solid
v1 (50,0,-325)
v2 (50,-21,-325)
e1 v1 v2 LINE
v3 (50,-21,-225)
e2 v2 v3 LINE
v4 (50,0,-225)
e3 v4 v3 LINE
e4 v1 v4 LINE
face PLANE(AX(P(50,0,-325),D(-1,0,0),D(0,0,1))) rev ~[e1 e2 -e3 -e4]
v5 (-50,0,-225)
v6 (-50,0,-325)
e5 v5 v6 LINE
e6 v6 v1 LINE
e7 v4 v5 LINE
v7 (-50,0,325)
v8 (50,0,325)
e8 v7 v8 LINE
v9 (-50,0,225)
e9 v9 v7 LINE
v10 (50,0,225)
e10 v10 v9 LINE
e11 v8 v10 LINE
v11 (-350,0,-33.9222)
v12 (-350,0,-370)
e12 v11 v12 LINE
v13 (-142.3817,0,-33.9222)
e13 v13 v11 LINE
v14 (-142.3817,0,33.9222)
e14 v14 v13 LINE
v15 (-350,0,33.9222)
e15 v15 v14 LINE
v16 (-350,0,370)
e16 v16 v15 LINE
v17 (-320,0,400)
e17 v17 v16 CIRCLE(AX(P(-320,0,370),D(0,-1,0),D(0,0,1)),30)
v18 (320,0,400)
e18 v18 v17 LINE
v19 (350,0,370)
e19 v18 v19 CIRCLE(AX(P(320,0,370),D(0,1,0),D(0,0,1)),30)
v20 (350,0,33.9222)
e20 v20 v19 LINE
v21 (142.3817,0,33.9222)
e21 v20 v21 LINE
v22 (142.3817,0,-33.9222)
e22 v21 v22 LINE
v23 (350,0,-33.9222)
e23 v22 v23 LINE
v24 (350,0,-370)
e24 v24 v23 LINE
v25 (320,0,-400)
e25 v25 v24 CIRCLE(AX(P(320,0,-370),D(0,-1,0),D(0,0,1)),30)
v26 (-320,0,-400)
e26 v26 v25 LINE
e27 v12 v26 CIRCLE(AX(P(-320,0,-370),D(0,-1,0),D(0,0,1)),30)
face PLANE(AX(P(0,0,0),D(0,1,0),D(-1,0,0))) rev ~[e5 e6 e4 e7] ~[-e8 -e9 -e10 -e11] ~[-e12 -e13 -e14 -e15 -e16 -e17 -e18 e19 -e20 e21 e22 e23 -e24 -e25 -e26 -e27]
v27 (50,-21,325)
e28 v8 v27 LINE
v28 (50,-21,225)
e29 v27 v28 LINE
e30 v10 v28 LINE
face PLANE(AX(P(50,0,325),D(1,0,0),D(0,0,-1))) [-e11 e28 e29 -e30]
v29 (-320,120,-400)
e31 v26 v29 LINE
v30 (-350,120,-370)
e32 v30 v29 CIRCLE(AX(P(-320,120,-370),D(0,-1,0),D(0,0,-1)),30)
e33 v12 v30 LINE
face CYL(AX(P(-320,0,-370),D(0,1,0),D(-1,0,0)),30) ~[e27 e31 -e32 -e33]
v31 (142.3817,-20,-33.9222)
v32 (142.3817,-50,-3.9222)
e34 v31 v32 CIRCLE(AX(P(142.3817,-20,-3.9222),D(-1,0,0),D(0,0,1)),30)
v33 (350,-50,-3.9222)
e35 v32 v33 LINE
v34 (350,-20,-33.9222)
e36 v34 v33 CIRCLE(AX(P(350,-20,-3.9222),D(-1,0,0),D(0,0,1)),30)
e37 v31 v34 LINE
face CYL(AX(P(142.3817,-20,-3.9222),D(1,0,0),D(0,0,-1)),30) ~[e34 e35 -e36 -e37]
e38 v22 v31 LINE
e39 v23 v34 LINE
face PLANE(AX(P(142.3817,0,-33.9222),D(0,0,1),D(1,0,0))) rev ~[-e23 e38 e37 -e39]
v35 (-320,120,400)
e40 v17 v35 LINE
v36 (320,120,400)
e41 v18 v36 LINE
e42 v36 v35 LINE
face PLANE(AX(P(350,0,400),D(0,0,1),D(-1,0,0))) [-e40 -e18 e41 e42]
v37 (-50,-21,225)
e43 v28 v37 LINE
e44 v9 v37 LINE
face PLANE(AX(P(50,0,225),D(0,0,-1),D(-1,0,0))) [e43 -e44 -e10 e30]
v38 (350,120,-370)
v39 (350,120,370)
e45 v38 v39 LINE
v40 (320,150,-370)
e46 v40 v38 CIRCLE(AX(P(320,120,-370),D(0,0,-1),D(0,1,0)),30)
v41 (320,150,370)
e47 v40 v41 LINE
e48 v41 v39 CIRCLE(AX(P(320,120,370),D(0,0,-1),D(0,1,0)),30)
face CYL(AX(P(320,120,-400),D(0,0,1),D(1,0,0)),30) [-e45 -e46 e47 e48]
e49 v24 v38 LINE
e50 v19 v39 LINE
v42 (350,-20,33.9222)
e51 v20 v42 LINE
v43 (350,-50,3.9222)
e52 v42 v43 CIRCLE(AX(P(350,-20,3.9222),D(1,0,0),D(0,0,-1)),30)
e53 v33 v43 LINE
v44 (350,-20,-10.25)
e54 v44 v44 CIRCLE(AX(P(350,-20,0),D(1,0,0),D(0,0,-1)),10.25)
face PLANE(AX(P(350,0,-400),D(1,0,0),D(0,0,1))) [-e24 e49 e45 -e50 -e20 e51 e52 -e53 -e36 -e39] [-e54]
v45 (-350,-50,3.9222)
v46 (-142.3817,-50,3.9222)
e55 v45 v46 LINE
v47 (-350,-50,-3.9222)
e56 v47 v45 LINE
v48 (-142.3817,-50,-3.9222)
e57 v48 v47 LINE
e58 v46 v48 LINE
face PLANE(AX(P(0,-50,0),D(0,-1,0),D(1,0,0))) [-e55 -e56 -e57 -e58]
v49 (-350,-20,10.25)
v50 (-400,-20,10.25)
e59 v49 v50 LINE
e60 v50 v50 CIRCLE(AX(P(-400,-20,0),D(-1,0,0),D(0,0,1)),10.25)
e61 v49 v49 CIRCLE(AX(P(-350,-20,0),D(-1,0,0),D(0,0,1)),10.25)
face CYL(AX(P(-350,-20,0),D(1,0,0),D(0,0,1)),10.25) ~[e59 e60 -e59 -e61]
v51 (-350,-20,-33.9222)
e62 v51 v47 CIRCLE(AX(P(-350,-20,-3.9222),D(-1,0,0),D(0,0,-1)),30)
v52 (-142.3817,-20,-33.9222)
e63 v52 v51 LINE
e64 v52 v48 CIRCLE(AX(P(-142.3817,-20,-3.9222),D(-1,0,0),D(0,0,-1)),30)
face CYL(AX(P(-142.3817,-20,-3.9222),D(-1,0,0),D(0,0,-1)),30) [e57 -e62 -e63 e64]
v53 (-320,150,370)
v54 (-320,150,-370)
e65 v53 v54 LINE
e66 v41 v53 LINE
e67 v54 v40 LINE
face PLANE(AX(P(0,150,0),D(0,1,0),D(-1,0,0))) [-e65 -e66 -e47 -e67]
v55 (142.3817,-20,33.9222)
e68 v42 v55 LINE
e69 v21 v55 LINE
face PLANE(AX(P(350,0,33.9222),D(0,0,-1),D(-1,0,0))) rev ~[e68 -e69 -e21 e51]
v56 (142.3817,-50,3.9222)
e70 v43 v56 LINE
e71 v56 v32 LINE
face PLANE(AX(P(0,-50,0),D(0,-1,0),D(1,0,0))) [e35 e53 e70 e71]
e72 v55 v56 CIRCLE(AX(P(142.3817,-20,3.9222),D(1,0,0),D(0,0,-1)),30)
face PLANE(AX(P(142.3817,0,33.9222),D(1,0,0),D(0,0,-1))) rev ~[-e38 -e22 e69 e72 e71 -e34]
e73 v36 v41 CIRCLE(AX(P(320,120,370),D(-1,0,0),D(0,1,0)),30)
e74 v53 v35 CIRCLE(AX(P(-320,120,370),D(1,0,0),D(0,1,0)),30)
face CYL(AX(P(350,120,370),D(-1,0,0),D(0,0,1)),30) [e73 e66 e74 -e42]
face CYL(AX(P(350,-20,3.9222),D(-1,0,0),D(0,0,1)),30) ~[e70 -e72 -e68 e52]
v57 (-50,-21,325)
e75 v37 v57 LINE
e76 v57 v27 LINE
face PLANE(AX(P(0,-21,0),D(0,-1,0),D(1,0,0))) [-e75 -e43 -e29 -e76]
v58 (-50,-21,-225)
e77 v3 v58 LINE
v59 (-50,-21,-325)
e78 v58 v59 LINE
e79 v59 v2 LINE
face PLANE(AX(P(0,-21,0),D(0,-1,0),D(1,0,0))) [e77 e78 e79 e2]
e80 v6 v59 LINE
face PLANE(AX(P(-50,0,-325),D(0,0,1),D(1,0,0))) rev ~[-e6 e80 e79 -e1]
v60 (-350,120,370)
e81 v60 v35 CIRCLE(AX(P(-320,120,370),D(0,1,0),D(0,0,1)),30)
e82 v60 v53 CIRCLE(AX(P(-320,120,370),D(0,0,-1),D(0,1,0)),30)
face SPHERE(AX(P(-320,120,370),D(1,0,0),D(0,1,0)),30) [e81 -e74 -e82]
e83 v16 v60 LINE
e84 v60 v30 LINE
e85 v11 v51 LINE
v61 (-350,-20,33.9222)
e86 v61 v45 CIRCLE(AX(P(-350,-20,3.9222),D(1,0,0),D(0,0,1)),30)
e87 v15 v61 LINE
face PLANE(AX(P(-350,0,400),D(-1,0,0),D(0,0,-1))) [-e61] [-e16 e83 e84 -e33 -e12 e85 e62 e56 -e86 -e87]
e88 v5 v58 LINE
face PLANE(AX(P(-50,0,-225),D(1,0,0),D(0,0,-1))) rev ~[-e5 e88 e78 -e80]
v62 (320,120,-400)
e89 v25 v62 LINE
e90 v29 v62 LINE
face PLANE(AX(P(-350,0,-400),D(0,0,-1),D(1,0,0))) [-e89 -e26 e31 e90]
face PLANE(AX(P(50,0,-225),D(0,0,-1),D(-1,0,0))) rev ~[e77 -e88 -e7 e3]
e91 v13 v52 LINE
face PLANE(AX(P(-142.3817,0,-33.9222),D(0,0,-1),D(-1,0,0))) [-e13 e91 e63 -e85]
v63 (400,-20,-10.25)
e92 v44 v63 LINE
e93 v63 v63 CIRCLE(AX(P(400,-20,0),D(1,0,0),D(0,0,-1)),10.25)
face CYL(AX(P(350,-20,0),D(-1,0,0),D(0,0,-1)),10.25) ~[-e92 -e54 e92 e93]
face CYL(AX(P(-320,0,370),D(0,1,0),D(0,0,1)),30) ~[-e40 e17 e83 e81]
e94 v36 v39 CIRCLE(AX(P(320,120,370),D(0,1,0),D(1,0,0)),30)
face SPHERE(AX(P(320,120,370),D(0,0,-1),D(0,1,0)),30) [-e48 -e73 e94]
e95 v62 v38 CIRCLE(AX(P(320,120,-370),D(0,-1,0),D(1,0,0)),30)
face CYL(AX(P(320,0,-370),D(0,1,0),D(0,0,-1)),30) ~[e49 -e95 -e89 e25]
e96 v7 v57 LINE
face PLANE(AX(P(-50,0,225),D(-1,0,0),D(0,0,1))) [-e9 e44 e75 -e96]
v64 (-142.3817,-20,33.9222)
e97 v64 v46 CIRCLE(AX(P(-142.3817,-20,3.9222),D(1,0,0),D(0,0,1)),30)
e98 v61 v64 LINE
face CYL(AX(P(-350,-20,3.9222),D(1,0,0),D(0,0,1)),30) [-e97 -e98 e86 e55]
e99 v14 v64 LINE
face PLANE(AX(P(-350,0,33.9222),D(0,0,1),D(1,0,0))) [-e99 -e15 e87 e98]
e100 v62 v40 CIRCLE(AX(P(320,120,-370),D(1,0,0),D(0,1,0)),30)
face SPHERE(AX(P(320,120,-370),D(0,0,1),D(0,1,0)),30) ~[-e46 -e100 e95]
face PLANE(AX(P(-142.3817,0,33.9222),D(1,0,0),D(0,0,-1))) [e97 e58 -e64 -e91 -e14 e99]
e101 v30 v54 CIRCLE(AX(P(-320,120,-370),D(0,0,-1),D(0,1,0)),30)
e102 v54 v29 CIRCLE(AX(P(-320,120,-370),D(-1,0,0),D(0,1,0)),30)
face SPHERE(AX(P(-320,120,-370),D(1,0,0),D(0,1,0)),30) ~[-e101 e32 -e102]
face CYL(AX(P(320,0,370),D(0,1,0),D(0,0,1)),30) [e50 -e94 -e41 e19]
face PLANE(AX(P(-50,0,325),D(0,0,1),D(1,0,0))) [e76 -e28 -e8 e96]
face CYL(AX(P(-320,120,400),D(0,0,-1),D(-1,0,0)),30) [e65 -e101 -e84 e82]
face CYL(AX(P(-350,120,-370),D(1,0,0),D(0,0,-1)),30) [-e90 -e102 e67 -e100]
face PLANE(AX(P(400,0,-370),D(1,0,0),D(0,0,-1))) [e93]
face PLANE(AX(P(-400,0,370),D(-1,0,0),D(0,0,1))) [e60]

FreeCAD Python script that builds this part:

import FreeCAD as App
import Part
import Sketcher
from FreeCAD import Vector
Q = App.Units.Quantity


def edges_at(feature, points):
    """Names of the edges that pass closest to the given points."""
    edges = feature.Shape.Edges
    near = lambda p: min(range(len(edges)), key=lambda i: edges[i].distToShape(Part.Vertex(*p))[0])
    return sorted({f"Edge{near(p) + 1}" for p in points})

doc = App.newDocument("Part")
params = doc.addObject("Spreadsheet::Sheet", "Params")
for row, (alias, value) in enumerate([
    ("sketch1_width", "700 mm"),
    ("sketch1_height", "800 mm"),
    ("pad1_length", "150 mm"),
    ("fillet_radius", "30 mm"),
    ("pad2_length", "50 mm"),
    ("fillet2_radius", "30 mm"),
    ("sketch3_diameter", "20.5 mm"),
    ("pad3_length", "50 mm"),
    ("sketch4_diameter", "20.5 mm"),
    ("pad4_length", "50 mm"),
    ("sketch5_width", "100 mm"),
    ("pad5_length", "21 mm"),
], start=1):
    params.set(f"A{row}", alias)
    params.set(f"B{row}", "=" + value)
    params.setAlias(f"B{row}", alias)

body = doc.addObject("PartDesign::Body", "Body")

# Sketch on XZ plane
sketch1 = doc.addObject("Sketcher::SketchObject", "Sketch")
body.addObject(sketch1)
sketch1.AttachmentSupport = (doc.XZ_Plane, [""])
sketch1.MapMode = "FlatFace"
sketch1.addGeometry(Part.LineSegment(Vector(-350, 400, 0), Vector(350, 400, 0)), False)
sketch1.addGeometry(Part.LineSegment(Vector(350, 400, 0), Vector(350, -400, 0)), False)
sketch1.addGeometry(Part.LineSegment(Vector(350, -400, 0), Vector(-350, -400, 0)), False)
sketch1.addGeometry(Part.LineSegment(Vector(-350, -400, 0), Vector(-350, 400, 0)), False)
sketch1.addConstraint(Sketcher.Constraint("Coincident", 0, 2, 1, 1))
sketch1.addConstraint(Sketcher.Constraint("Coincident", 1, 2, 2, 1))
sketch1.addConstraint(Sketcher.Constraint("Coincident", 2, 2, 3, 1))
sketch1.addConstraint(Sketcher.Constraint("Coincident", 3, 2, 0, 1))
sketch1.addConstraint(Sketcher.Constraint("Horizontal", 0))
sketch1.addConstraint(Sketcher.Constraint("Vertical", 1))
sketch1.addConstraint(Sketcher.Constraint("Horizontal", 2))
sketch1.addConstraint(Sketcher.Constraint("Vertical", 3))
sketch1.addConstraint(Sketcher.Constraint("Symmetric", 0, 2, 2, 2, -1, 1))
sketch1.addConstraint(Sketcher.Constraint("DistanceX", 0, 1, 0, 2, Q("700 mm")))
sketch1.addConstraint(Sketcher.Constraint("DistanceY", 1, 2, 1, 1, Q("800 mm")))
sketch1.setExpression("Constraints[9]", "Params.sketch1_width")
sketch1.setExpression("Constraints[10]", "Params.sketch1_height")
pad1 = doc.addObject("PartDesign::Pad", "Pad")
body.addObject(pad1)
pad1.Profile = sketch1
pad1.setExpression("Length", "Params.pad1_length")
pad1.Reversed = True
doc.recompute()

fillet = doc.addObject("PartDesign::Fillet", "Fillet")
body.addObject(fillet)
fillet.Base = (pad1, edges_at(pad1, [
    (350, 150, 0),
    (0, 150, -400),
    (0, 150, 400),
    (-350, 150, 0),
    (-350, 75, 400),
    (350, 75, 400),
    (350, 75, -400),
    (-350, 75, -400),
]))
fillet.setExpression("Radius", "Params.fillet_radius")

# Sketch on XZ plane
sketch2 = doc.addObject("Sketcher::SketchObject", "Sketch001")
body.addObject(sketch2)
sketch2.AttachmentSupport = (doc.XZ_Plane, [""])
sketch2.MapMode = "FlatFace"
sketch2.addGeometry(Part.LineSegment(Vector(-350, 33.9222, 0), Vector(-350, -33.9222, 0)), False)
sketch2.addGeometry(Part.LineSegment(Vector(-350, -33.9222, 0), Vector(-142.3817, -33.9222, 0)), False)
sketch2.addGeometry(Part.LineSegment(Vector(-142.3817, -33.9222, 0), Vector(-142.3817, 33.9222, 0)), False)
sketch2.addGeometry(Part.LineSegment(Vector(-142.3817, 33.9222, 0), Vector(-350, 33.9222, 0)), False)
sketch2.addGeometry(Part.LineSegment(Vector(142.3817, 33.9222, 0), Vector(142.3817, -33.9222, 0)), False)
sketch2.addGeometry(Part.LineSegment(Vector(142.3817, -33.9222, 0), Vector(350, -33.9222, 0)), False)
sketch2.addGeometry(Part.LineSegment(Vector(350, -33.9222, 0), Vector(350, 33.9222, 0)), False)
sketch2.addGeometry(Part.LineSegment(Vector(350, 33.9222, 0), Vector(142.3817, 33.9222, 0)), False)
sketch2.addConstraint(Sketcher.Constraint("Coincident", 0, 2, 1, 1))
sketch2.addConstraint(Sketcher.Constraint("Coincident", 1, 2, 2, 1))
sketch2.addConstraint(Sketcher.Constraint("Coincident", 2, 2, 3, 1))
sketch2.addConstraint(Sketcher.Constraint("Coincident", 3, 2, 0, 1))
sketch2.addConstraint(Sketcher.Constraint("Coincident", 4, 2, 5, 1))
sketch2.addConstraint(Sketcher.Constraint("Coincident", 5, 2, 6, 1))
sketch2.addConstraint(Sketcher.Constraint("Coincident", 6, 2, 7, 1))
sketch2.addConstraint(Sketcher.Constraint("Coincident", 7, 2, 4, 1))
sketch2.addConstraint(Sketcher.Constraint("Vertical", 0))
sketch2.addConstraint(Sketcher.Constraint("Horizontal", 1))
sketch2.addConstraint(Sketcher.Constraint("Vertical", 2))
sketch2.addConstraint(Sketcher.Constraint("Horizontal", 3))
sketch2.addConstraint(Sketcher.Constraint("Vertical", 4))
sketch2.addConstraint(Sketcher.Constraint("Horizontal", 5))
sketch2.addConstraint(Sketcher.Constraint("Vertical", 6))
sketch2.addConstraint(Sketcher.Constraint("Horizontal", 7))
sketch2.addConstraint(Sketcher.Constraint("Symmetric", 2, 2, 4, 2, -1, 1))
sketch2.addConstraint(Sketcher.Constraint("Symmetric", 0, 2, 6, 2, -1, 1))
sketch2.addConstraint(Sketcher.Constraint("Horizontal", 1, 2, 4, 2))
sketch2.addConstraint(Sketcher.Constraint("DistanceX", 0, 2, -1, 1, Q("350 mm")))
sketch2.addConstraint(Sketcher.Constraint("DistanceX", 1, 1, 1, 2, Q("207.6183 mm")))
sketch2.addConstraint(Sketcher.Constraint("DistanceY", 0, 2, 0, 1, Q("67.8444 mm")))
pad2 = doc.addObject("PartDesign::Pad", "Pad001")
body.addObject(pad2)
pad2.Profile = sketch2
pad2.setExpression("Length", "Params.pad2_length")
doc.recompute()

fillet2 = doc.addObject("PartDesign::Fillet", "Fillet001")
body.addObject(fillet2)
fillet2.Base = (pad2, edges_at(pad2, [
    (-246.191, -50, 33.922),
    (-246.191, -50, -33.922),
    (246.191, -50, 33.922),
    (246.191, -50, -33.922),
]))
fillet2.setExpression("Radius", "Params.fillet2_radius")

# Sketch on YZ plane
sketch3 = doc.addObject("Sketcher::SketchObject", "Sketch002")
body.addObject(sketch3)
sketch3.AttachmentSupport = (doc.YZ_Plane, [""])
sketch3.MapMode = "FlatFace"
sketch3.AttachmentOffset = App.Placement(Vector(0, 0, -350), App.Rotation())
sketch3.addGeometry(Part.Circle(Vector(-20, 0, 0), Vector(0, 0, 1), 10.25), False)
sketch3.addConstraint(Sketcher.Constraint("PointOnObject", 0, 3, -1))
sketch3.addConstraint(Sketcher.Constraint("Diameter", 0, Q("20.5 mm")))
sketch3.addConstraint(Sketcher.Constraint("DistanceX", 0, 3, -1, 1, Q("20 mm")))
sketch3.setExpression("Constraints[1]", "Params.sketch3_diameter")
pad3 = doc.addObject("PartDesign::Pad", "Pad002")
body.addObject(pad3)
pad3.Profile = sketch3
pad3.setExpression("Length", "Params.pad3_length")
pad3.Reversed = True

# Sketch on YZ plane
sketch4 = doc.addObject("Sketcher::SketchObject", "Sketch003")
body.addObject(sketch4)
sketch4.AttachmentSupport = (doc.YZ_Plane, [""])
sketch4.MapMode = "FlatFace"
sketch4.AttachmentOffset = App.Placement(Vector(0, 0, 350), App.Rotation())
sketch4.addGeometry(Part.Circle(Vector(-20, 0, 0), Vector(0, 0, 1), 10.25), False)
sketch4.addConstraint(Sketcher.Constraint("PointOnObject", 0, 3, -1))
sketch4.addConstraint(Sketcher.Constraint("Diameter", 0, Q("20.5 mm")))
sketch4.addConstraint(Sketcher.Constraint("DistanceX", 0, 3, -1, 1, Q("20 mm")))
sketch4.setExpression("Constraints[1]", "Params.sketch4_diameter")
pad4 = doc.addObject("PartDesign::Pad", "Pad003")
body.addObject(pad4)
pad4.Profile = sketch4
pad4.setExpression("Length", "Params.pad4_length")

# Sketch on XZ plane
sketch5 = doc.addObject("Sketcher::SketchObject", "Sketch004")
body.addObject(sketch5)
sketch5.AttachmentSupport = (doc.XZ_Plane, [""])
sketch5.MapMode = "FlatFace"
sketch5.addGeometry(Part.LineSegment(Vector(50, 325, 0), Vector(-50, 325, 0)), False)
sketch5.addGeometry(Part.LineSegment(Vector(-50, 325, 0), Vector(-50, 225, 0)), False)
sketch5.addGeometry(Part.LineSegment(Vector(-50, 225, 0), Vector(50, 225, 0)), False)
sketch5.addGeometry(Part.LineSegment(Vector(50, 225, 0), Vector(50, 325, 0)), False)
sketch5.addGeometry(Part.LineSegment(Vector(-50, -225, 0), Vector(-50, -325, 0)), False)
sketch5.addGeometry(Part.LineSegment(Vector(-50, -325, 0), Vector(50, -325, 0)), False)
sketch5.addGeometry(Part.LineSegment(Vector(50, -325, 0), Vector(50, -225, 0)), False)
sketch5.addGeometry(Part.LineSegment(Vector(50, -225, 0), Vector(-50, -225, 0)), False)
sketch5.addConstraint(Sketcher.Constraint("Coincident", 0, 2, 1, 1))
sketch5.addConstraint(Sketcher.Constraint("Coincident", 1, 2, 2, 1))
sketch5.addConstraint(Sketcher.Constraint("Coincident", 2, 2, 3, 1))
sketch5.addConstraint(Sketcher.Constraint("Coincident", 3, 2, 0, 1))
sketch5.addConstraint(Sketcher.Constraint("Coincident", 4, 2, 5, 1))
sketch5.addConstraint(Sketcher.Constraint("Coincident", 5, 2, 6, 1))
sketch5.addConstraint(Sketcher.Constraint("Coincident", 6, 2, 7, 1))
sketch5.addConstraint(Sketcher.Constraint("Coincident", 7, 2, 4, 1))
sketch5.addConstraint(Sketcher.Constraint("Horizontal", 0))
sketch5.addConstraint(Sketcher.Constraint("Vertical", 1))
sketch5.addConstraint(Sketcher.Constraint("Horizontal", 2))
sketch5.addConstraint(Sketcher.Constraint("Vertical", 3))
sketch5.addConstraint(Sketcher.Constraint("Vertical", 4))
sketch5.addConstraint(Sketcher.Constraint("Horizontal", 5))
sketch5.addConstraint(Sketcher.Constraint("Vertical", 6))
sketch5.addConstraint(Sketcher.Constraint("Horizontal", 7))
sketch5.addConstraint(Sketcher.Constraint("Symmetric", 3, 2, 4, 2, -1, 1))
sketch5.addConstraint(Sketcher.Constraint("Symmetric", 1, 2, 6, 2, -1, 1))
sketch5.addConstraint(Sketcher.Constraint("Vertical", 1, 2, 4, 2))
sketch5.addConstraint(Sketcher.Constraint("Equal", 7, 1))
sketch5.addConstraint(Sketcher.Constraint("DistanceX", 0, 2, 0, 1, Q("100 mm")))
sketch5.addConstraint(Sketcher.Constraint("DistanceY", -1, 1, 0, 2, Q("325 mm")))
sketch5.setExpression("Constraints[20]", "Params.sketch5_width")
pad5 = doc.addObject("PartDesign::Pad", "Pad004")
body.addObject(pad5)
pad5.Profile = sketch5
pad5.setExpression("Length", "Params.pad5_length")

doc.recompute()
